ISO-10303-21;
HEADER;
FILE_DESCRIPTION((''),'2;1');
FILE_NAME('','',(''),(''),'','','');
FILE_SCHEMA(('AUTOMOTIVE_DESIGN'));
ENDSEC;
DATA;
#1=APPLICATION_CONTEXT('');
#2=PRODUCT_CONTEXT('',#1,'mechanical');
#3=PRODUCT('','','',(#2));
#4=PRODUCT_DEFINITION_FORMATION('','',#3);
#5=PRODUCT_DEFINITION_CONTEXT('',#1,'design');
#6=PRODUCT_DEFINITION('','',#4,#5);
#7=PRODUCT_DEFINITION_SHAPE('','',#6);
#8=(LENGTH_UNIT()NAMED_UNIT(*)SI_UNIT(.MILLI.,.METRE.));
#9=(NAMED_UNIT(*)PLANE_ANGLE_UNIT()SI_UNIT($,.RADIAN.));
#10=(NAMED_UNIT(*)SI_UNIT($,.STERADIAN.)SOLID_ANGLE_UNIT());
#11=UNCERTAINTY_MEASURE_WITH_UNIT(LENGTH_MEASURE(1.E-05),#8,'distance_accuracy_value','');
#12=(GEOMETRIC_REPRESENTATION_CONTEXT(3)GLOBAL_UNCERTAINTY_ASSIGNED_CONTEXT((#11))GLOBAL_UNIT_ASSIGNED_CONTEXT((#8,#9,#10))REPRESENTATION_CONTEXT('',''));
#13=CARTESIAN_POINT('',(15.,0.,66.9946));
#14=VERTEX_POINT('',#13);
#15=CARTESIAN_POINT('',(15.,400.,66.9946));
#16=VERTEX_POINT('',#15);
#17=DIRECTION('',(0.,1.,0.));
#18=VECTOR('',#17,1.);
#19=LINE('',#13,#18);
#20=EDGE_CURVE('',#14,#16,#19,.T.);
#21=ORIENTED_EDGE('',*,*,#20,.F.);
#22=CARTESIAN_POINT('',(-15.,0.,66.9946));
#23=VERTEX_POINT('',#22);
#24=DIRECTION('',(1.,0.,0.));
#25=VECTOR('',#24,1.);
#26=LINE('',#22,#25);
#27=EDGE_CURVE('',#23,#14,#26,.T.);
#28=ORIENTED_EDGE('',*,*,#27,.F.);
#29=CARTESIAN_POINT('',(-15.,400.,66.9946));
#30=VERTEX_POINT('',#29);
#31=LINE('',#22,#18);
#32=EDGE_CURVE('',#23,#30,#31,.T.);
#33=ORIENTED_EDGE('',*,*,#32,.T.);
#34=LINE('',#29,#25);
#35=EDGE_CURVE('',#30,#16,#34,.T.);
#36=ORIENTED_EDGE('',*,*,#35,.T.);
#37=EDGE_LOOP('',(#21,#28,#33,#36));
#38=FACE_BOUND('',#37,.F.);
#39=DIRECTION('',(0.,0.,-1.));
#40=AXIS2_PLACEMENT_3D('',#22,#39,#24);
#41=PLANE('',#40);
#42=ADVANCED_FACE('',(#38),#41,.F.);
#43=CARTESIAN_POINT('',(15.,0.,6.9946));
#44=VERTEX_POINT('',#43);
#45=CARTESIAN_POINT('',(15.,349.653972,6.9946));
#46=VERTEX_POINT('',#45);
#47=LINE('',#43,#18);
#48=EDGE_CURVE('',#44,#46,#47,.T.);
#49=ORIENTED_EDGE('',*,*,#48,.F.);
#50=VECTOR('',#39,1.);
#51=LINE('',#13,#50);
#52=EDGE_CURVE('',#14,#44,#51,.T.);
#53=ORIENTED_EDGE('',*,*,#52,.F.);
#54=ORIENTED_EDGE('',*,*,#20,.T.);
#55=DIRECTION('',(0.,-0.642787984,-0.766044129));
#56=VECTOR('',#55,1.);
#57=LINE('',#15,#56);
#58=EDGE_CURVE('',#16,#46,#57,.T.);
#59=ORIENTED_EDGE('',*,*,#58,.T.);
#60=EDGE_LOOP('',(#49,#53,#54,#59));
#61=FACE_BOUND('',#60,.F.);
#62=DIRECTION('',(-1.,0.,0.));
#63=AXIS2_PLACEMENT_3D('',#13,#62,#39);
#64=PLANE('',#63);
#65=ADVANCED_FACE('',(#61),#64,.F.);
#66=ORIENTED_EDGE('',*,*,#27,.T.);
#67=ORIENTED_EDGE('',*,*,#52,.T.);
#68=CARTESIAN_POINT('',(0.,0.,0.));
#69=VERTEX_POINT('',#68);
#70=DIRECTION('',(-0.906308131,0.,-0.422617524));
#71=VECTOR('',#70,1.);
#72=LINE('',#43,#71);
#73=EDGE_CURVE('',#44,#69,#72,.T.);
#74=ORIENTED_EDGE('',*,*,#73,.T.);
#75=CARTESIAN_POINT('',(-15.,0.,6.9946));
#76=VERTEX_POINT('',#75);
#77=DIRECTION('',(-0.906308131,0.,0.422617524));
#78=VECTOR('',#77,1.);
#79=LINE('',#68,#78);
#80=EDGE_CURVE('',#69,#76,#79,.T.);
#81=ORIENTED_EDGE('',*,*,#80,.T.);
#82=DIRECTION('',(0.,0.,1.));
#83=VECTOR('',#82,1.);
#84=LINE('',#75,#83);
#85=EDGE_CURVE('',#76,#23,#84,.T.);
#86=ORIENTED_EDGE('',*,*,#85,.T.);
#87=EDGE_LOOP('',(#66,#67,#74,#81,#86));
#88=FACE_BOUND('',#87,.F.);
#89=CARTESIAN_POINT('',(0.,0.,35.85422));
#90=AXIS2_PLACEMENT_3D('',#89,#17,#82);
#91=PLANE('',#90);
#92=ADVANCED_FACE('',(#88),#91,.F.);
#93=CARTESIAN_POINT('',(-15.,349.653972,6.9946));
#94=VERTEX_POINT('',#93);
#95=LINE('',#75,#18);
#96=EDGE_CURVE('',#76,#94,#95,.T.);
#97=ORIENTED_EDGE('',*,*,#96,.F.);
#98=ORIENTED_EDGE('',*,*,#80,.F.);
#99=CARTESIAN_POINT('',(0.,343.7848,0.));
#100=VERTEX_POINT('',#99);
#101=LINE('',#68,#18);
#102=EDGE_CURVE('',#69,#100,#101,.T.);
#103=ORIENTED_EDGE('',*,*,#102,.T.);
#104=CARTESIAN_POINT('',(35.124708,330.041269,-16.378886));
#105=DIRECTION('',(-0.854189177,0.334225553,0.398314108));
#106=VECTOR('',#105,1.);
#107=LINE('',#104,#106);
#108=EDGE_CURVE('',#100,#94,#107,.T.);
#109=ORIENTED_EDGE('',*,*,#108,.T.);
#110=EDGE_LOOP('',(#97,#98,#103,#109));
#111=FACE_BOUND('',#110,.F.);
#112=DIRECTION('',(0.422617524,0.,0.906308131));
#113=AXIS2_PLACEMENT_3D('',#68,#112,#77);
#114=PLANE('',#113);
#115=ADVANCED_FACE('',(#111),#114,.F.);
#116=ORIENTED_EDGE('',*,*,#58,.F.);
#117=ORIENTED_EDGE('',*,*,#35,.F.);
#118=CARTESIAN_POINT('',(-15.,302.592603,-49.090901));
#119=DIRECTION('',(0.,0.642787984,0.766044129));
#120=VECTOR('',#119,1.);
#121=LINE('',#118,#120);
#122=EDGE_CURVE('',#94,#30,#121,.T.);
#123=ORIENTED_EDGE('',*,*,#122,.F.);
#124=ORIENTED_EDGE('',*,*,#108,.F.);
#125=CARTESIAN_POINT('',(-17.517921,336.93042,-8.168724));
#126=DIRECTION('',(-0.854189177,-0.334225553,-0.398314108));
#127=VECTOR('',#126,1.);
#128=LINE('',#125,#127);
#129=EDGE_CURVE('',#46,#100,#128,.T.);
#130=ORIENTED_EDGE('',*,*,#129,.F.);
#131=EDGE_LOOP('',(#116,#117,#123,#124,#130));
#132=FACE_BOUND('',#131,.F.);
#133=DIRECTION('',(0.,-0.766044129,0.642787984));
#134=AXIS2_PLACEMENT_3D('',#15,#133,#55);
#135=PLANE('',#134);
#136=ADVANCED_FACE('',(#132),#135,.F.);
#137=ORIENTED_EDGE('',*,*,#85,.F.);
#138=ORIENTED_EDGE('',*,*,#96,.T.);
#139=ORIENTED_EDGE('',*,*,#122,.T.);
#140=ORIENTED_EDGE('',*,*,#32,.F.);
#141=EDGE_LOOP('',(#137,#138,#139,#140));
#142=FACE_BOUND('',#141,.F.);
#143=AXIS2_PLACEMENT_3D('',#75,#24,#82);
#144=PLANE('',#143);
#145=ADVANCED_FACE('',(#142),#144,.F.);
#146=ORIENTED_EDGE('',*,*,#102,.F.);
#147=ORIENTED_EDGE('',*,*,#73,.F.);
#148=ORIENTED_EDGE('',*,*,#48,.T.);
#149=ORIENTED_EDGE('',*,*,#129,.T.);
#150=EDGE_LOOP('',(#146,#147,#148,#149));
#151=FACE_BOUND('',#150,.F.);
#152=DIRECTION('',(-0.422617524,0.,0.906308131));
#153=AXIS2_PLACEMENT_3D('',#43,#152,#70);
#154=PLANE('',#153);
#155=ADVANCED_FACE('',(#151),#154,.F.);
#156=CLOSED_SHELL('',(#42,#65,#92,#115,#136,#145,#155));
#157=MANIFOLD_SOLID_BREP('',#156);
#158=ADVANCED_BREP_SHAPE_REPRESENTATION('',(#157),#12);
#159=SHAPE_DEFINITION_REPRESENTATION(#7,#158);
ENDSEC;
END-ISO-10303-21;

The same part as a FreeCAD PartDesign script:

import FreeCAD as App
import Part
import Sketcher

V = App.Vector
Q = App.Units.Quantity


def add_polygon(sketch, points):
    """Adds a closed chain of lines whose ends are joined by coincident constraints."""
    first, n = sketch.GeometryCount, len(points)
    for a, b in zip(points, points[1:] + points[:1]):
        sketch.addGeometry(Part.LineSegment(App.Vector(*a, 0), App.Vector(*b, 0)), False)
    for i in range(n):
        sketch.addConstraint(Sketcher.Constraint("Coincident", first + i, 2, first + (i + 1) % n, 1))

doc = App.newDocument("Part")
params = doc.addObject("Spreadsheet::Sheet", "Params")
for row, (alias, value) in enumerate([
    ("sketch1_width", "30 mm"),
    ("sketch1_height", "60 mm"),
    ("pad1_length", "400 mm"),
], start=1):
    params.set(f"A{row}", alias)
    params.set(f"B{row}", "=" + value)
    params.setAlias(f"B{row}", alias)

body = doc.addObject("PartDesign::Body", "Body")

# Sketch on XZ plane
sketch1 = body.newObject("Sketcher::SketchObject", "Sketch")
sketch1.AttachmentSupport = (doc.getObject("XZ_Plane"), [""])
sketch1.MapMode = "FlatFace"
add_polygon(sketch1, [(15, 7), (15, 67), (-15, 67), (-15, 7), (0, 0)])  # lines 0-4
sketch1.addConstraint([
    Sketcher.Constraint("Vertical", 0),
    Sketcher.Constraint("Horizontal", 1),
    Sketcher.Constraint("Vertical", 2),
    Sketcher.Constraint("Coincident", 3, 2, -1, 1),
    Sketcher.Constraint("Symmetric", 2, 2, 4, 2, -2),
    Sketcher.Constraint("DistanceX", 1, 2, 1, 1, Q("30 mm")),
    Sketcher.Constraint("DistanceY", 0, 1, 0, 2, Q("60 mm")),
    Sketcher.Constraint("Angle", 3, Q("-25 deg")),
])
sketch1.setExpression("Constraints[10]", "Params.sketch1_width")
sketch1.setExpression("Constraints[11]", "Params.sketch1_height")
pad1 = body.newObject("PartDesign::Pad", "Pad")
pad1.Profile = sketch1
pad1.setExpression("Length", "Params.pad1_length")
pad1.Reversed = True

# Sketch on YZ plane
sketch2 = body.newObject("Sketcher::SketchObject", "Sketch001")
sketch2.AttachmentSupport = (doc.getObject("YZ_Plane"), [""])
sketch2.MapMode = "FlatFace"
sketch2.AttachmentOffset = App.Placement(V(0, 0, 15), App.Rotation())
add_polygon(sketch2, [(400, 0), (400, 67), (344, 0)])  # lines 0-2
sketch2.addConstraint([
    Sketcher.Constraint("Vertical", 0),
    Sketcher.Constraint("Horizontal", 2),
    Sketcher.Constraint("PointOnObject", 1, 2, -1),
    Sketcher.Constraint("Angle", 1, Q("-130 deg")),
    Sketcher.Constraint("DistanceX", -1, 1, 0, 2, Q("400 mm")),
    Sketcher.Constraint("DistanceX", 2, 1, 2, 2, Q("56.2152 mm")),
])
pocket1 = body.newObject("PartDesign::Pocket", "Pocket")
pocket1.Profile = sketch2
pocket1.Type = "UpToFirst"

doc.recompute()
